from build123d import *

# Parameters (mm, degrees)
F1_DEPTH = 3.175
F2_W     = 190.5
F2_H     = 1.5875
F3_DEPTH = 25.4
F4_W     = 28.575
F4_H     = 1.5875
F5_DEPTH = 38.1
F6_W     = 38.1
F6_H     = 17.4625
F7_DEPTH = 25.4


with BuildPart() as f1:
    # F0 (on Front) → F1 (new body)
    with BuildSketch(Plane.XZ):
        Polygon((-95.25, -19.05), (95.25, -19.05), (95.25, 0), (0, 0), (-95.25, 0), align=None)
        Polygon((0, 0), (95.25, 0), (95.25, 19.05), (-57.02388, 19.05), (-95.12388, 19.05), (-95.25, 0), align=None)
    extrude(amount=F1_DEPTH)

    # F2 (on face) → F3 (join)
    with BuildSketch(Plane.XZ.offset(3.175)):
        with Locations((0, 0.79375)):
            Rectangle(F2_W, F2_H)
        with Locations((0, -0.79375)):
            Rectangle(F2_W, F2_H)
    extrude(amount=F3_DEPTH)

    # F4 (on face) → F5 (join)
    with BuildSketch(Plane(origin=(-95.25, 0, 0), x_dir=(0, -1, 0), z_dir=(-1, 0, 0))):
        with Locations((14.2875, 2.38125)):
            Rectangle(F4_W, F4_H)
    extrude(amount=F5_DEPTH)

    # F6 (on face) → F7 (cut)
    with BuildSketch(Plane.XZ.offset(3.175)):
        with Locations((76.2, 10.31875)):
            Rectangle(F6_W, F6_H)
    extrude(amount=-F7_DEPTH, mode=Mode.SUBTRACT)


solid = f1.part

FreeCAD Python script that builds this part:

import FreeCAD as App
import Part
import Sketcher
Q = App.Units.Quantity


def add_polygon(sketch, points):
    """Adds a closed chain of lines whose ends are joined by coincident constraints."""
    first, n = sketch.GeometryCount, len(points)
    for a, b in zip(points, points[1:] + points[:1]):
        sketch.addGeometry(Part.LineSegment(App.Vector(*a, 0), App.Vector(*b, 0)), False)
    for i in range(n):
        sketch.addConstraint(Sketcher.Constraint("Coincident", first + i, 2, first + (i + 1) % n, 1))

doc = App.newDocument("Part")
body = doc.addObject("PartDesign::Body", "Body")
body.AllowCompound = True

# Sketch on XZ plane
sketch1 = doc.addObject("Sketcher::SketchObject", "Sketch")
body.addObject(sketch1)
sketch1.AttachmentSupport = (doc.XZ_Plane, [""])
sketch1.MapMode = "FlatFace"
add_polygon(sketch1, [(-95.25, -19.05), (95.25, -19.05), (95.25, 19.05), (-95.12388, 19.05), (-95.25, 0)])  # lines 0-4
sketch1.addConstraint([
    Sketcher.Constraint("Horizontal", 0),
    Sketcher.Constraint("Vertical", 1),
    Sketcher.Constraint("Horizontal", 2),
    Sketcher.Constraint("Vertical", 4),
    Sketcher.Constraint("Symmetric", 1, 2, 4, 2, -1, 1),
    Sketcher.Constraint("PointOnObject", 3, 2, -1),
    Sketcher.Constraint("DistanceX", 0, 1, 0, 2, Q("7.5 in")),
    Sketcher.Constraint("DistanceY", 1, 1, 1, 2, Q("1.5 in")),
    Sketcher.Constraint("DistanceX", 2, 2, 2, 1, 190.37388),
])
pad1 = doc.addObject("PartDesign::Pad", "Pad")
body.addObject(pad1)
pad1.Profile = sketch1
pad1.Length = Q("0.125 in")

# Sketch on XZ plane
sketch2 = doc.addObject("Sketcher::SketchObject", "Sketch001")
body.addObject(sketch2)
sketch2.AttachmentSupport = (doc.XZ_Plane, [""])
sketch2.MapMode = "FlatFace"
sketch2.AttachmentOffset = App.Placement(App.Vector(0, 0, 0.125 * 25.4), App.Rotation())
add_polygon(sketch2, [(-95.25, 1.5875), (-95.25, -1.5875), (95.25, -1.5875), (95.25, 1.5875)])  # lines 0-3
sketch2.addConstraint([
    Sketcher.Constraint("Vertical", 0),
    Sketcher.Constraint("Horizontal", 1),
    Sketcher.Constraint("Vertical", 2),
    Sketcher.Constraint("Horizontal", 3),
    Sketcher.Constraint("Symmetric", 0, 2, 2, 2, -1, 1),
    Sketcher.Constraint("DistanceX", 1, 1, 1, 2, Q("7.5 in")),
    Sketcher.Constraint("DistanceY", 0, 2, 0, 1, Q("0.125 in")),
])
pad2 = doc.addObject("PartDesign::Pad", "Pad001")
body.addObject(pad2)
pad2.Profile = sketch2
pad2.Length = Q("1 in")

# Sketch on YZ plane
sketch3 = doc.addObject("Sketcher::SketchObject", "Sketch002")
body.addObject(sketch3)
sketch3.AttachmentSupport = (doc.YZ_Plane, [""])
sketch3.MapMode = "FlatFace"
sketch3.AttachmentOffset = App.Placement(App.Vector(0, 0, -3.75 * 25.4), App.Rotation())
add_polygon(sketch3, [(0, 3.175), (0, 1.5875), (-28.575, 1.5875), (-28.575, 3.175)])  # lines 0-3
sketch3.addConstraint([
    Sketcher.Constraint("Vertical", 0),
    Sketcher.Constraint("Horizontal", 1),
    Sketcher.Constraint("Vertical", 2),
    Sketcher.Constraint("Horizontal", 3),
    Sketcher.Constraint("PointOnObject", 0, 2, -2),
    Sketcher.Constraint("DistanceX", 1, 2, 1, 1, Q("1.125 in")),
    Sketcher.Constraint("DistanceY", 0, 2, 0, 1, Q("0.0625 in")),
    Sketcher.Constraint("DistanceY", -1, 1, 0, 2, Q("0.0625 in")),
])
pad3 = doc.addObject("PartDesign::Pad", "Pad002")
body.addObject(pad3)
pad3.Profile = sketch3
pad3.Length = Q("1.5 in")
pad3.Reversed = True

# Sketch on XZ plane
sketch4 = doc.addObject("Sketcher::SketchObject", "Sketch003")
body.addObject(sketch4)
sketch4.AttachmentSupport = (doc.XZ_Plane, [""])
sketch4.MapMode = "FlatFace"
sketch4.AttachmentOffset = App.Placement(App.Vector(0, 0, 0.125 * 25.4), App.Rotation())
add_polygon(sketch4, [(57.15, 19.05), (57.15, 1.5875), (95.25, 1.5875), (95.25, 19.05)])  # lines 0-3
sketch4.addConstraint([
    Sketcher.Constraint("Vertical", 0),
    Sketcher.Constraint("Horizontal", 1),
    Sketcher.Constraint("Vertical", 2),
    Sketcher.Constraint("Horizontal", 3),
    Sketcher.Constraint("DistanceX", 1, 1, 1, 2, Q("1.5 in")),
    Sketcher.Constraint("DistanceY", 0, 2, 0, 1, Q("0.6875 in")),
    Sketcher.Constraint("DistanceX", -1, 1, 0, 2, Q("2.25 in")),
    Sketcher.Constraint("DistanceY", -1, 1, 2, 2, Q("0.75 in")),
])
pocket1 = doc.addObject("PartDesign::Pocket", "Pocket")
body.addObject(pocket1)
pocket1.Profile = sketch4
pocket1.Length = Q("1 in")

doc.recompute()
